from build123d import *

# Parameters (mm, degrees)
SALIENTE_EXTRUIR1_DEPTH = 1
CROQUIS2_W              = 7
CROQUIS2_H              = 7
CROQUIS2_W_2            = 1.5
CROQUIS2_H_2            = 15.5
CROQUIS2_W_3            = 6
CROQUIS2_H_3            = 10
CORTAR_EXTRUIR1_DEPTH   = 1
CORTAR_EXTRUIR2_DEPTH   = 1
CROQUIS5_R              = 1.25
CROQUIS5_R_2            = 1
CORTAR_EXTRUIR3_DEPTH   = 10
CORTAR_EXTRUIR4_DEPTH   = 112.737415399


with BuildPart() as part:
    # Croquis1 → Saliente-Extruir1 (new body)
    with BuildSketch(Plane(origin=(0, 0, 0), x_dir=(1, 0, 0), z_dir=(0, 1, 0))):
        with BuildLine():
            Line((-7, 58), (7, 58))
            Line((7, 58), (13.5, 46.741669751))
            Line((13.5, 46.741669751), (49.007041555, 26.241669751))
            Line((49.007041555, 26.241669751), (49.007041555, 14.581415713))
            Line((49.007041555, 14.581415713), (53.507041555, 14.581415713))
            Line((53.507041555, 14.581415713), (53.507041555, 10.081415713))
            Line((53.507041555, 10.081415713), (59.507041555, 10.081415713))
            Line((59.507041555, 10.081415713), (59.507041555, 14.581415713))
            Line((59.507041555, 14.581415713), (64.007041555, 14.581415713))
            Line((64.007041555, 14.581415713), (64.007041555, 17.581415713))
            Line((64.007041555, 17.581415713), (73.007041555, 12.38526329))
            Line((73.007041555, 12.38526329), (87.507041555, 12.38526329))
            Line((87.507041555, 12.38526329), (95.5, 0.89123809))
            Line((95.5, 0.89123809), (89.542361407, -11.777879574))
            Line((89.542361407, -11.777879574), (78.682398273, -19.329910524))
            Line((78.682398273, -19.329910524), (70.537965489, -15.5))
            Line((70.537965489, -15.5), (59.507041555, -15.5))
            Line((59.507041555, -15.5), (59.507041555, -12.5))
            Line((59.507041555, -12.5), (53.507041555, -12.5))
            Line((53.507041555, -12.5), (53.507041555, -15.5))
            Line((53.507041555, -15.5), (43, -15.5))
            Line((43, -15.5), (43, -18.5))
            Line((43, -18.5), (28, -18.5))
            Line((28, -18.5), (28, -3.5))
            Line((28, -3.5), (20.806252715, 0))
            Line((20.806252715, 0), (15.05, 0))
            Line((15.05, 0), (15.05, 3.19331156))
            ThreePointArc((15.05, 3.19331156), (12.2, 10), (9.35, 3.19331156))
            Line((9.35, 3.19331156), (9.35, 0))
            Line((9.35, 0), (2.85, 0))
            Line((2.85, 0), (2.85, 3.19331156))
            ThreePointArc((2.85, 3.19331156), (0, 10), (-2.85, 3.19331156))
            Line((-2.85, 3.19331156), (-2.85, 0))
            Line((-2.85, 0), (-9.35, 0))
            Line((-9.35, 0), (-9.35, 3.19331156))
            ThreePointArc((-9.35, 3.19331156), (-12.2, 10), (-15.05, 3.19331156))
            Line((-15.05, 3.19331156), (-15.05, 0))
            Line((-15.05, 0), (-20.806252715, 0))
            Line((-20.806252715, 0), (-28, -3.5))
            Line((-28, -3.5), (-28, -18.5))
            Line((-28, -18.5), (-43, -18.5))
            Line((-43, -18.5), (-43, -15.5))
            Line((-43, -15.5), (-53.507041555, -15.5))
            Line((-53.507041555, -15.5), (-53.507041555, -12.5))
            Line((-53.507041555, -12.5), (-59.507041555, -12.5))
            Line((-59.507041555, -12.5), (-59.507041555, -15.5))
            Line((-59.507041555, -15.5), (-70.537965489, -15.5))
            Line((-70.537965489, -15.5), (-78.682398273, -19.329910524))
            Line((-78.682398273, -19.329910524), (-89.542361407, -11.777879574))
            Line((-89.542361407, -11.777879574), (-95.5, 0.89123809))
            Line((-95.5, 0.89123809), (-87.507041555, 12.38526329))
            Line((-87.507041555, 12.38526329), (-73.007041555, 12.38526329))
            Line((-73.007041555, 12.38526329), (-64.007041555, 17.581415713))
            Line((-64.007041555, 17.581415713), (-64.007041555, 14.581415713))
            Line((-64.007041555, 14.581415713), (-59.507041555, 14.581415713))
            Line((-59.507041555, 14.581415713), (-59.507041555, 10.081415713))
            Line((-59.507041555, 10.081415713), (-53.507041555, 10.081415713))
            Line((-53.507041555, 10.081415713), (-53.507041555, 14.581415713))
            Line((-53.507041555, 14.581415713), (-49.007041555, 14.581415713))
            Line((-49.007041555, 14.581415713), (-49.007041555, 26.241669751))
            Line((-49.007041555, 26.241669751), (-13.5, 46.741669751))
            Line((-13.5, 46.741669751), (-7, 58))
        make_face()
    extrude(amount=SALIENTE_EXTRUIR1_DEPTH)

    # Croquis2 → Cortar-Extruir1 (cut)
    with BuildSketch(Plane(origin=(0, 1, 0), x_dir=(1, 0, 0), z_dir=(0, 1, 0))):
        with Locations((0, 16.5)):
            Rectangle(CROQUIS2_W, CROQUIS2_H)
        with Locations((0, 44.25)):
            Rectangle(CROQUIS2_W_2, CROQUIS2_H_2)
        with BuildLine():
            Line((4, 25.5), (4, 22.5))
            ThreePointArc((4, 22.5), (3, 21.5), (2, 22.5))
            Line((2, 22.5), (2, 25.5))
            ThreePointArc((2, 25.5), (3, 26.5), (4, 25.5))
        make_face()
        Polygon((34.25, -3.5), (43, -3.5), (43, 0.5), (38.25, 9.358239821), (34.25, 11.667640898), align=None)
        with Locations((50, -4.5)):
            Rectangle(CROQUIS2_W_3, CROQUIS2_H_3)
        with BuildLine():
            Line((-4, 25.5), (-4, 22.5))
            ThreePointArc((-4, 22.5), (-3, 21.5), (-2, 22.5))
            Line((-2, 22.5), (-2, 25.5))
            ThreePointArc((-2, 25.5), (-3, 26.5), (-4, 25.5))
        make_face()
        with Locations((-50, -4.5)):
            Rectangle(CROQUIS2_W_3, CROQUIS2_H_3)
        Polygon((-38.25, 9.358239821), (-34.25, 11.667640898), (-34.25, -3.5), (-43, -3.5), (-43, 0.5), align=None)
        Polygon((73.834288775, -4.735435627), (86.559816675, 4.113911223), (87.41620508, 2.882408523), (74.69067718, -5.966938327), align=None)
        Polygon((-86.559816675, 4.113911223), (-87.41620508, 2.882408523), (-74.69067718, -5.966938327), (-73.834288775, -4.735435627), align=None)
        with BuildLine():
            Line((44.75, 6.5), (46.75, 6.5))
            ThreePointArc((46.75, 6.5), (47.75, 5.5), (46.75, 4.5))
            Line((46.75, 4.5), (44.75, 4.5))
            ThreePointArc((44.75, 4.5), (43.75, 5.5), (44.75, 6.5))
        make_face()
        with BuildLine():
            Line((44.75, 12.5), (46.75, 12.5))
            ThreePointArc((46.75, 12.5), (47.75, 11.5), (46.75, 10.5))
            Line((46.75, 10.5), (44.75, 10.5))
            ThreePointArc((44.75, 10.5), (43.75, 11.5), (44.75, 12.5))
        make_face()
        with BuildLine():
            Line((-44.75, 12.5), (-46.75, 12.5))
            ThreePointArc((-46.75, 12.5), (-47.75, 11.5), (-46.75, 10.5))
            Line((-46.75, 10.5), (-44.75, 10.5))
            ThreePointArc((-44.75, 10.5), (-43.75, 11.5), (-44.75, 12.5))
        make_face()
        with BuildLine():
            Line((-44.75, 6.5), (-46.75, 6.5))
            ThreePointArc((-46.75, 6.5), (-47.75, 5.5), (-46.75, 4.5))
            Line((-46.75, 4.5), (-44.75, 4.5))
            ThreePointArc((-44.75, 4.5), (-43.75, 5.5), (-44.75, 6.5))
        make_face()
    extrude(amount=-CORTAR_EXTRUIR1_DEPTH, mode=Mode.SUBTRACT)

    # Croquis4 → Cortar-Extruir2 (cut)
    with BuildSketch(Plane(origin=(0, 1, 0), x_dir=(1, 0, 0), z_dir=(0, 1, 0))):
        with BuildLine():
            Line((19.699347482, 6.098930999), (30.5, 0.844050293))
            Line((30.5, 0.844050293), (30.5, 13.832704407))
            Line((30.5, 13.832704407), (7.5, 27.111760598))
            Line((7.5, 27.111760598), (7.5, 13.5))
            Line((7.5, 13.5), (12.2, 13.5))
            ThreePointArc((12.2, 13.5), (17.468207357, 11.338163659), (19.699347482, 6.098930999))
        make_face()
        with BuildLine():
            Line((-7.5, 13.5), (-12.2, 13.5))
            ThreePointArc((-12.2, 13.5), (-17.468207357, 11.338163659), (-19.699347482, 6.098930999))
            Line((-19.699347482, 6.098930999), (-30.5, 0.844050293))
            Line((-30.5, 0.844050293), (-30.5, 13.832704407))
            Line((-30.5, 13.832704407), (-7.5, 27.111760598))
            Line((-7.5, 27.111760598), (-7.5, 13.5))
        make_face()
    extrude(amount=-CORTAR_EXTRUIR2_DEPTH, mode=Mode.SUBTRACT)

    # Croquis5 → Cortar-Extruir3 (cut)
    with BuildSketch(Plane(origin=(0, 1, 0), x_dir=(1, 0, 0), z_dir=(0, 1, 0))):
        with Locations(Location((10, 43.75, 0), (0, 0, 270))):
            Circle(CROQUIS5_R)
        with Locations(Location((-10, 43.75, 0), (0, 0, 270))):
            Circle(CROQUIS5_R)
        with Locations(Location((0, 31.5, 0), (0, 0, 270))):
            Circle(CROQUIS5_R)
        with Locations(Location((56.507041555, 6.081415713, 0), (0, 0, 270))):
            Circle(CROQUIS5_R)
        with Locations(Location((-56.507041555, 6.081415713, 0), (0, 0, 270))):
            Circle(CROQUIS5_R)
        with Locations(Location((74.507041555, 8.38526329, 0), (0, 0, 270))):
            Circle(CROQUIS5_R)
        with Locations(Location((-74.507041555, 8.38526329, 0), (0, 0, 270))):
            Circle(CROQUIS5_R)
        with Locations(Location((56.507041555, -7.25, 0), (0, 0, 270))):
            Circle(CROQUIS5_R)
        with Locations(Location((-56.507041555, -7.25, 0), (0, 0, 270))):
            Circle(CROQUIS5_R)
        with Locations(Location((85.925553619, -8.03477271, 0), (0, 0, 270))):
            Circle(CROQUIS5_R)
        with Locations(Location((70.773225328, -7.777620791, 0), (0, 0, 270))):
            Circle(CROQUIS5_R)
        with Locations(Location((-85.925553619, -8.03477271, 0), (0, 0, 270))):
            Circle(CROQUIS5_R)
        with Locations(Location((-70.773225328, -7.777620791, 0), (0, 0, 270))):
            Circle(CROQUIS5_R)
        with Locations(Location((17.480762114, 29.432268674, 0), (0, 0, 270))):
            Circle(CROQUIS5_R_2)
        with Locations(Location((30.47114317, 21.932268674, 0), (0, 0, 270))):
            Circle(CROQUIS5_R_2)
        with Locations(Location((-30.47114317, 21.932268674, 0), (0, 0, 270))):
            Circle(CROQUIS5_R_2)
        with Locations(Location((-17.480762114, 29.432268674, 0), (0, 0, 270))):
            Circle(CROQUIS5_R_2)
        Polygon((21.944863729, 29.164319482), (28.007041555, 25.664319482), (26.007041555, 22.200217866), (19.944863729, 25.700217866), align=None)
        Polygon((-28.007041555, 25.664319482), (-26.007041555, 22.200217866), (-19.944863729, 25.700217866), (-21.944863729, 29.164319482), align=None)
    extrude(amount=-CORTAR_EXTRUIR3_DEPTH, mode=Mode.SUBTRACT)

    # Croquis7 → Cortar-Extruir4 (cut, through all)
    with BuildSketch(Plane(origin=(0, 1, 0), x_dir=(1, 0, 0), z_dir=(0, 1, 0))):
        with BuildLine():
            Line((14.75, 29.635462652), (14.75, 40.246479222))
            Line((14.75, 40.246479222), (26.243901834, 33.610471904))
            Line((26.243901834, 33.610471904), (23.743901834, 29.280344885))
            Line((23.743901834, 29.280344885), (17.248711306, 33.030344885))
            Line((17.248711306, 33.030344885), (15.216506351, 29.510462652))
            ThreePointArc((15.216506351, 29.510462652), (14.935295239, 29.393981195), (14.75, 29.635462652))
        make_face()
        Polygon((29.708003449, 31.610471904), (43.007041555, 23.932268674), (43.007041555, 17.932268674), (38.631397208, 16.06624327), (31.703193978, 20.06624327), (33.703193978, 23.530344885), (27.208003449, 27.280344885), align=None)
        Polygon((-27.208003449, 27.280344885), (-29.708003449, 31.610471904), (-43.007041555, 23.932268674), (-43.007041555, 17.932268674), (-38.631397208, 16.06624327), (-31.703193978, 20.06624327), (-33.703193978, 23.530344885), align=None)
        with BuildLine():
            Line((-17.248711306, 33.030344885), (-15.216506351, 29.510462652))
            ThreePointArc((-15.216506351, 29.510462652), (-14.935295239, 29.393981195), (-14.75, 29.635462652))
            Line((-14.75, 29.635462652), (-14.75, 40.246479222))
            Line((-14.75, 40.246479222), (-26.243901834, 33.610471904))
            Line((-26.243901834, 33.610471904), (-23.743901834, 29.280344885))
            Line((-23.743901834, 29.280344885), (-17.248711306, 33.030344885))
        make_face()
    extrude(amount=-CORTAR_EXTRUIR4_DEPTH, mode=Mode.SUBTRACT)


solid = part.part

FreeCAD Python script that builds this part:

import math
import FreeCAD as App
import Part
import Sketcher
Q = App.Units.Quantity


def add_polygon(sketch, points):
    """Adds a closed chain of lines whose ends are joined by coincident constraints."""
    first, n = sketch.GeometryCount, len(points)
    for a, b in zip(points, points[1:] + points[:1]):
        sketch.addGeometry(Part.LineSegment(App.Vector(*a, 0), App.Vector(*b, 0)), False)
    for i in range(n):
        sketch.addConstraint(Sketcher.Constraint("Coincident", first + i, 2, first + (i + 1) % n, 1))

doc = App.newDocument("Part")
body = doc.addObject("PartDesign::Body", "Body")

sketch1 = body.newObject("Sketcher::SketchObject", "Sketch")
sketch1.AttachmentSupport = (doc.getObject("XZ_Plane"), [""])
sketch1.MapMode = "FlatFace"
sketch1.addGeometry([
    Part.LineSegment(App.Vector(7, -58, 0), App.Vector(-7, -58, 0)),
    Part.LineSegment(App.Vector(-7, -58, 0), App.Vector(-13.5, -46.7, 0)),
    Part.LineSegment(App.Vector(-13.5, -46.7, 0), App.Vector(-49, -26.2, 0)),
    Part.LineSegment(App.Vector(-49, -26.2, 0), App.Vector(-49, -14.6, 0)),
    Part.LineSegment(App.Vector(-49, -14.6, 0), App.Vector(-53.5, -14.6, 0)),
    Part.LineSegment(App.Vector(-53.5, -14.6, 0), App.Vector(-53.5, -10.1, 0)),
    Part.LineSegment(App.Vector(-53.5, -10.1, 0), App.Vector(-59.5, -10.1, 0)),
    Part.LineSegment(App.Vector(-59.5, -10.1, 0), App.Vector(-59.5, -14.6, 0)),
    Part.LineSegment(App.Vector(-59.5, -14.6, 0), App.Vector(-64, -14.6, 0)),
    Part.LineSegment(App.Vector(-64, -14.6, 0), App.Vector(-64, -17.6, 0)),
    Part.LineSegment(App.Vector(-64, -17.6, 0), App.Vector(-73, -12.4, 0)),
    Part.LineSegment(App.Vector(-73, -12.4, 0), App.Vector(-87.5, -12.4, 0)),
    Part.LineSegment(App.Vector(-87.5, -12.4, 0), App.Vector(-95.5, -0.9, 0)),
    Part.LineSegment(App.Vector(-95.5, -0.9, 0), App.Vector(-89.5, 11.8, 0)),
    Part.LineSegment(App.Vector(-89.5, 11.8, 0), App.Vector(-78.7, 19.3, 0)),
    Part.LineSegment(App.Vector(-78.7, 19.3, 0), App.Vector(-70.5, 15.5, 0)),
    Part.LineSegment(App.Vector(-70.5, 15.5, 0), App.Vector(-59.5, 15.5, 0)),
    Part.LineSegment(App.Vector(-59.5, 15.5, 0), App.Vector(-59.5, 12.5, 0)),
    Part.LineSegment(App.Vector(-59.5, 12.5, 0), App.Vector(-53.5, 12.5, 0)),
    Part.LineSegment(App.Vector(-53.5, 12.5, 0), App.Vector(-53.5, 15.5, 0)),
    Part.LineSegment(App.Vector(-53.5, 15.5, 0), App.Vector(-43, 15.5, 0)),
    Part.LineSegment(App.Vector(-43, 15.5, 0), App.Vector(-43, 18.5, 0)),
    Part.LineSegment(App.Vector(-43, 18.5, 0), App.Vector(-28, 18.5, 0)),
    Part.LineSegment(App.Vector(-28, 18.5, 0), App.Vector(-28, 3.5, 0)),
    Part.LineSegment(App.Vector(-28, 3.5, 0), App.Vector(-20.8, 0, 0)),
    Part.LineSegment(App.Vector(-20.8, 0, 0), App.Vector(-15.1, 0, 0)),
    Part.LineSegment(App.Vector(-15.1, 0, 0), App.Vector(-15.1, -3.2, 0)),
    Part.ArcOfCircle(Part.Circle(App.Vector(-12.2, -6, 0), App.Vector(0, 0, 1), 4), math.radians(135), math.radians(405)),
    Part.LineSegment(App.Vector(-9.3, -3.2, 0), App.Vector(-9.3, 0, 0)),
    Part.LineSegment(App.Vector(-9.3, 0, 0), App.Vector(-2.9, 0, 0)),
    Part.LineSegment(App.Vector(-2.9, 0, 0), App.Vector(-2.9, -3.2, 0)),
    Part.ArcOfCircle(Part.Circle(App.Vector(0, -6, 0), App.Vector(0, 0, 1), 4), math.radians(135), math.radians(405)),
    Part.LineSegment(App.Vector(2.9, -3.2, 0), App.Vector(2.9, 0, 0)),
    Part.LineSegment(App.Vector(2.9, 0, 0), App.Vector(9.3, 0, 0)),
    Part.LineSegment(App.Vector(9.3, 0, 0), App.Vector(9.3, -3.2, 0)),
    Part.ArcOfCircle(Part.Circle(App.Vector(12.2, -6, 0), App.Vector(0, 0, 1), 4), math.radians(135), math.radians(405)),
    Part.LineSegment(App.Vector(15.1, -3.2, 0), App.Vector(15.1, 0, 0)),
    Part.LineSegment(App.Vector(15.1, 0, 0), App.Vector(20.8, 0, 0)),
    Part.LineSegment(App.Vector(20.8, 0, 0), App.Vector(28, 3.5, 0)),
    Part.LineSegment(App.Vector(28, 3.5, 0), App.Vector(28, 18.5, 0)),
    Part.LineSegment(App.Vector(28, 18.5, 0), App.Vector(43, 18.5, 0)),
    Part.LineSegment(App.Vector(43, 18.5, 0), App.Vector(43, 15.5, 0)),
    Part.LineSegment(App.Vector(43, 15.5, 0), App.Vector(53.5, 15.5, 0)),
    Part.LineSegment(App.Vector(53.5, 15.5, 0), App.Vector(53.5, 12.5, 0)),
    Part.LineSegment(App.Vector(53.5, 12.5, 0), App.Vector(59.5, 12.5, 0)),
    Part.LineSegment(App.Vector(59.5, 12.5, 0), App.Vector(59.5, 15.5, 0)),
    Part.LineSegment(App.Vector(59.5, 15.5, 0), App.Vector(70.5, 15.5, 0)),
    Part.LineSegment(App.Vector(70.5, 15.5, 0), App.Vector(78.7, 19.3, 0)),
    Part.LineSegment(App.Vector(78.7, 19.3, 0), App.Vector(89.5, 11.8, 0)),
    Part.LineSegment(App.Vector(89.5, 11.8, 0), App.Vector(95.5, -0.9, 0)),
    Part.LineSegment(App.Vector(95.5, -0.9, 0), App.Vector(87.5, -12.4, 0)),
    Part.LineSegment(App.Vector(87.5, -12.4, 0), App.Vector(73, -12.4, 0)),
    Part.LineSegment(App.Vector(73, -12.4, 0), App.Vector(64, -17.6, 0)),
    Part.LineSegment(App.Vector(64, -17.6, 0), App.Vector(64, -14.6, 0)),
    Part.LineSegment(App.Vector(64, -14.6, 0), App.Vector(59.5, -14.6, 0)),
    Part.LineSegment(App.Vector(59.5, -14.6, 0), App.Vector(59.5, -10.1, 0)),
    Part.LineSegment(App.Vector(59.5, -10.1, 0), App.Vector(53.5, -10.1, 0)),
    Part.LineSegment(App.Vector(53.5, -10.1, 0), App.Vector(53.5, -14.6, 0)),
    Part.LineSegment(App.Vector(53.5, -14.6, 0), App.Vector(49, -14.6, 0)),
    Part.LineSegment(App.Vector(49, -14.6, 0), App.Vector(49, -26.2, 0)),
    Part.LineSegment(App.Vector(49, -26.2, 0), App.Vector(13.5, -46.7, 0)),
    Part.LineSegment(App.Vector(13.5, -46.7, 0), App.Vector(7, -58, 0)),
], False)
sketch1.addConstraint([
    Sketcher.Constraint("Coincident", 0, 2, 1, 1),
    Sketcher.Constraint("Coincident", 1, 2, 2, 1),
    Sketcher.Constraint("Coincident", 2, 2, 3, 1),
    Sketcher.Constraint("Coincident", 3, 2, 4, 1),
    Sketcher.Constraint("Coincident", 4, 2, 5, 1),
    Sketcher.Constraint("Coincident", 5, 2, 6, 1),
    Sketcher.Constraint("Coincident", 6, 2, 7, 1),
    Sketcher.Constraint("Coincident", 7, 2, 8, 1),
    Sketcher.Constraint("Coincident", 8, 2, 9, 1),
    Sketcher.Constraint("Coincident", 9, 2, 10, 1),
    Sketcher.Constraint("Coincident", 10, 2, 11, 1),
    Sketcher.Constraint("Coincident", 11, 2, 12, 1),
    Sketcher.Constraint("Coincident", 12, 2, 13, 1),
    Sketcher.Constraint("Coincident", 13, 2, 14, 1),
    Sketcher.Constraint("Coincident", 14, 2, 15, 1),
    Sketcher.Constraint("Coincident", 15, 2, 16, 1),
    Sketcher.Constraint("Coincident", 16, 2, 17, 1),
    Sketcher.Constraint("Coincident", 17, 2, 18, 1),
    Sketcher.Constraint("Coincident", 18, 2, 19, 1),
    Sketcher.Constraint("Coincident", 19, 2, 20, 1),
    Sketcher.Constraint("Coincident", 20, 2, 21, 1),
    Sketcher.Constraint("Coincident", 21, 2, 22, 1),
    Sketcher.Constraint("Coincident", 22, 2, 23, 1),
    Sketcher.Constraint("Coincident", 23, 2, 24, 1),
    Sketcher.Constraint("Coincident", 24, 2, 25, 1),
    Sketcher.Constraint("Coincident", 25, 2, 26, 1),
    Sketcher.Constraint("Coincident", 26, 2, 27, 1),
    Sketcher.Constraint("Coincident", 27, 2, 28, 1),
    Sketcher.Constraint("Coincident", 28, 2, 29, 1),
    Sketcher.Constraint("Coincident", 29, 2, 30, 1),
    Sketcher.Constraint("Coincident", 30, 2, 31, 1),
    Sketcher.Constraint("Coincident", 31, 2, 32, 1),
    Sketcher.Constraint("Coincident", 32, 2, 33, 1),
    Sketcher.Constraint("Coincident", 33, 2, 34, 1),
    Sketcher.Constraint("Coincident", 34, 2, 35, 1),
    Sketcher.Constraint("Coincident", 35, 2, 36, 1),
    Sketcher.Constraint("Coincident", 36, 2, 37, 1),
    Sketcher.Constraint("Coincident", 37, 2, 38, 1),
    Sketcher.Constraint("Coincident", 38, 2, 39, 1),
    Sketcher.Constraint("Coincident", 39, 2, 40, 1),
    Sketcher.Constraint("Coincident", 40, 2, 41, 1),
    Sketcher.Constraint("Coincident", 41, 2, 42, 1),
    Sketcher.Constraint("Coincident", 42, 2, 43, 1),
    Sketcher.Constraint("Coincident", 43, 2, 44, 1),
    Sketcher.Constraint("Coincident", 44, 2, 45, 1),
    Sketcher.Constraint("Coincident", 45, 2, 46, 1),
    Sketcher.Constraint("Coincident", 46, 2, 47, 1),
    Sketcher.Constraint("Coincident", 47, 2, 48, 1),
    Sketcher.Constraint("Coincident", 48, 2, 49, 1),
    Sketcher.Constraint("Coincident", 49, 2, 50, 1),
    Sketcher.Constraint("Coincident", 50, 2, 51, 1),
    Sketcher.Constraint("Coincident", 51, 2, 52, 1),
    Sketcher.Constraint("Coincident", 52, 2, 53, 1),
    Sketcher.Constraint("Coincident", 53, 2, 54, 1),
    Sketcher.Constraint("Coincident", 54, 2, 55, 1),
    Sketcher.Constraint("Coincident", 55, 2, 56, 1),
    Sketcher.Constraint("Coincident", 56, 2, 57, 1),
    Sketcher.Constraint("Coincident", 57, 2, 58, 1),
    Sketcher.Constraint("Coincident", 58, 2, 59, 1),
    Sketcher.Constraint("Coincident", 59, 2, 60, 1),
    Sketcher.Constraint("Coincident", 60, 2, 61, 1),
    Sketcher.Constraint("Coincident", 61, 2, 0, 1),
    Sketcher.Constraint("Horizontal", 0),
    Sketcher.Constraint("Vertical", 3),
    Sketcher.Constraint("Horizontal", 4),
    Sketcher.Constraint("Vertical", 5),
    Sketcher.Constraint("Horizontal", 6),
    Sketcher.Constraint("Vertical", 7),
    Sketcher.Constraint("Horizontal", 8),
    Sketcher.Constraint("Vertical", 9),
    Sketcher.Constraint("Horizontal", 11),
    Sketcher.Constraint("Horizontal", 16),
    Sketcher.Constraint("Vertical", 17),
    Sketcher.Constraint("Horizontal", 18),
    Sketcher.Constraint("Vertical", 19),
    Sketcher.Constraint("Horizontal", 20),
    Sketcher.Constraint("Vertical", 21),
    Sketcher.Constraint("Horizontal", 22),
    Sketcher.Constraint("Vertical", 23),
    Sketcher.Constraint("Horizontal", 25),
    Sketcher.Constraint("Vertical", 26),
    Sketcher.Constraint("Vertical", 28),
    Sketcher.Constraint("Horizontal", 29),
    Sketcher.Constraint("Vertical", 30),
    Sketcher.Constraint("Vertical", 32),
    Sketcher.Constraint("Horizontal", 33),
    Sketcher.Constraint("Vertical", 34),
    Sketcher.Constraint("Vertical", 36),
    Sketcher.Constraint("Horizontal", 37),
    Sketcher.Constraint("Vertical", 39),
    Sketcher.Constraint("Horizontal", 40),
    Sketcher.Constraint("Vertical", 41),
    Sketcher.Constraint("Horizontal", 42),
    Sketcher.Constraint("Vertical", 43),
    Sketcher.Constraint("Horizontal", 44),
    Sketcher.Constraint("Vertical", 45),
    Sketcher.Constraint("Horizontal", 46),
    Sketcher.Constraint("Horizontal", 51),
    Sketcher.Constraint("Vertical", 53),
    Sketcher.Constraint("Horizontal", 54),
    Sketcher.Constraint("Vertical", 55),
    Sketcher.Constraint("Horizontal", 56),
    Sketcher.Constraint("Vertical", 57),
    Sketcher.Constraint("Horizontal", 58),
    Sketcher.Constraint("Vertical", 59),
    Sketcher.Constraint("Equal", 27, 31),
    Sketcher.Constraint("Equal", 31, 35),
    Sketcher.Constraint("Symmetric", 29, 2, 32, 2, -1, 1),
    Sketcher.Constraint("Symmetric", 25, 2, 36, 2, -1, 1),
    Sketcher.Constraint("Symmetric", 27, 3, 35, 3, -2),
    Sketcher.Constraint("Symmetric", 28, 2, 33, 2, -2),
    Sketcher.Constraint("Symmetric", 24, 2, 37, 2, -2),
    Sketcher.Constraint("Symmetric", 23, 2, 38, 2, -2),
    Sketcher.Constraint("Symmetric", 21, 2, 40, 2, -2),
    Sketcher.Constraint("Symmetric", 19, 2, 42, 2, -2),
    Sketcher.Constraint("Symmetric", 17, 2, 44, 2, -2),
    Sketcher.Constraint("Symmetric", 15, 2, 46, 2, -2),
    Sketcher.Constraint("Symmetric", 14, 2, 47, 2, -2),
    Sketcher.Constraint("Symmetric", 13, 2, 48, 2, -2),
    Sketcher.Constraint("Symmetric", 12, 2, 49, 2, -2),
    Sketcher.Constraint("Symmetric", 11, 2, 50, 2, -2),
    Sketcher.Constraint("Symmetric", 9, 2, 52, 2, -2),
    Sketcher.Constraint("Symmetric", 7, 2, 54, 2, -2),
    Sketcher.Constraint("Symmetric", 5, 2, 56, 2, -2),
    Sketcher.Constraint("Symmetric", 3, 2, 58, 2, -2),
    Sketcher.Constraint("Symmetric", 1, 2, 60, 2, -2),
    Sketcher.Constraint("PointOnObject", 31, 3, -2),
    Sketcher.Constraint("Parallel", 2, 10),
    Sketcher.Constraint("Perpendicular", 12, 14),
    Sketcher.Constraint("Perpendicular", 13, 15),
    Sketcher.Constraint("Perpendicular", 1, 52),
    Sketcher.Constraint("Parallel", 52, 60),
    Sketcher.Constraint("Perpendicular", 10, 61),
    Sketcher.Constraint("Horizontal", 27, 3, 31, 3),
    Sketcher.Constraint("Horizontal", 4, 2, 7, 2),
    Sketcher.Constraint("Horizontal", 16, 2, 19, 2),
    Sketcher.Constraint("Horizontal", 26, 2, 27, 2),
    Sketcher.Constraint("Horizontal", 27, 2, 30, 2),
    Sketcher.Constraint("Horizontal", 2, 2, 59, 2),
    Sketcher.Constraint("Vertical", 7, 2, 16, 2),
    Sketcher.Constraint("Vertical", 5, 2, 18, 2),
    Sketcher.Constraint("Equal", 4, 8),
    Sketcher.Constraint("Equal", 58, 5),
    Sketcher.Constraint("Equal", 9, 17),
    Sketcher.Constraint("Equal", 19, 21),
    Sketcher.Constraint("Equal", 40, 23),
    Sketcher.Constraint("Equal", 12, 13),
    Sketcher.Constraint("Radius", 27, 4.0),
    Sketcher.Constraint("DistanceX", 0, 2, 0, 1, 14.0),
    Sketcher.Constraint("DistanceX", 6, 2, 6, 1, 6.0),
    Sketcher.Constraint("DistanceX", 22, 1, 22, 2, 15.0),
    Sketcher.Constraint("DistanceY", 9, 2, 9, 1, 3.0),
    Sketcher.Constraint("Angle", 1, Q("120 deg")),
    Sketcher.Constraint("Distance", 1, 13.0),
    Sketcher.Constraint("Distance", 2, 41.0),
    Sketcher.Constraint("Distance", 12, 14.0),
    Sketcher.Constraint("Distance", 15, 9.0),
    Sketcher.Constraint("Distance", 24, 8.0),
    Sketcher.Constraint("DistanceX", 4, 2, 4, 1, 4.5),
    Sketcher.Constraint("DistanceX", 11, 2, 11, 1, 14.5),
    Sketcher.Constraint("DistanceX", 29, 1, 29, 2, 6.5),
    Sketcher.Constraint("DistanceY", 27, 3, -1, 1, 6.0),
    Sketcher.Constraint("DistanceY", 0, 2, -1, 1, 58.0),
    Sketcher.Constraint("DistanceX", 20, 2, -1, 1, 43.0),
    Sketcher.Constraint("DistanceX", 27, 3, -1, 1, 12.2),
    Sketcher.Constraint("DistanceX", 12, 2, -1, 1, 95.5),
    Sketcher.Constraint("DistanceY", -1, 1, 15, 2, 15.5),
    Sketcher.Constraint("DistanceX", 14, 2, -1, 1, 78.682398),
    Sketcher.Constraint("DistanceX", 16, 1, 16, 2, 11.030924),
    Sketcher.Constraint("DistanceY", 3, 1, 3, 2, 11.660254),
])
pad1 = body.newObject("PartDesign::Pad", "Pad")
pad1.Profile = sketch1
pad1.Length = 1
pad1.Reversed = True

sketch2 = body.newObject("Sketcher::SketchObject", "Sketch001")
sketch2.AttachmentSupport = (doc.getObject("XZ_Plane"), [""])
sketch2.MapMode = "FlatFace"
sketch2.AttachmentOffset = App.Placement(App.Vector(0, 0, -1), App.Rotation())
add_polygon(sketch2, [(-3.5, -20), (-3.5, -13), (3.5, -13), (3.5, -20)])
add_polygon(sketch2, [(-0.8, -52), (-0.8, -36.5), (0.8, -36.5), (0.8, -52)])
sketch2.addGeometry(Part.LineSegment(App.Vector(4, -22.5, 0), App.Vector(4, -25.5, 0)), False)
sketch2.addGeometry(Part.ArcOfCircle(Part.Circle(App.Vector(3, -25.5, 0), App.Vector(0, 0, 1), 1), math.radians(180), math.radians(360)), False)
sketch2.addGeometry(Part.LineSegment(App.Vector(2, -25.5, 0), App.Vector(2, -22.5, 0)), False)
sketch2.addGeometry(Part.ArcOfCircle(Part.Circle(App.Vector(3, -22.5, 0), App.Vector(0, 0, 1), 1), math.radians(0), math.radians(180)), False)
add_polygon(sketch2, [(34.2, 3.5), (43, 3.5), (43, -0.5), (38.2, -9.4), (34.2, -11.7)])
add_polygon(sketch2, [(47, -0.5), (47, 9.5), (53, 9.5), (53, -0.5)])
sketch2.addGeometry(Part.LineSegment(App.Vector(-4, -25.5, 0), App.Vector(-4, -22.5, 0)), False)
sketch2.addGeometry(Part.ArcOfCircle(Part.Circle(App.Vector(-3, -22.5, 0), App.Vector(0, 0, 1), 1), math.radians(0), math.radians(180)), False)
sketch2.addGeometry(Part.LineSegment(App.Vector(-2, -22.5, 0), App.Vector(-2, -25.5, 0)), False)
sketch2.addGeometry(Part.ArcOfCircle(Part.Circle(App.Vector(-3, -25.5, 0), App.Vector(0, 0, 1), 1), math.radians(180), math.radians(360)), False)
add_polygon(sketch2, [(-53, -0.5), (-53, 9.5), (-47, 9.5), (-47, -0.5)])
add_polygon(sketch2, [(-34.2, -11.7), (-38.2, -9.4), (-43, -0.5), (-43, 3.5), (-34.2, 3.5)])
add_polygon(sketch2, [(86.6, -4.1), (73.8, 4.7), (74.7, 6), (87.4, -2.9)])
add_polygon(sketch2, [(-86.6, -4.1), (-87.4, -2.9), (-74.7, 6), (-73.8, 4.7)])
sketch2.addGeometry(Part.LineSegment(App.Vector(46.8, -6.5, 0), App.Vector(44.8, -6.5, 0)), False)
sketch2.addGeometry(Part.ArcOfCircle(Part.Circle(App.Vector(44.8, -5.5, 0), App.Vector(0, 0, 1), 1), math.radians(90), math.radians(270)), False)
sketch2.addGeometry(Part.LineSegment(App.Vector(44.8, -4.5, 0), App.Vector(46.8, -4.5, 0)), False)
sketch2.addGeometry(Part.ArcOfCircle(Part.Circle(App.Vector(46.8, -5.5, 0), App.Vector(0, 0, 1), 1), math.radians(-90), math.radians(90)), False)
sketch2.addGeometry(Part.LineSegment(App.Vector(46.8, -12.5, 0), App.Vector(44.8, -12.5, 0)), False)
sketch2.addGeometry(Part.ArcOfCircle(Part.Circle(App.Vector(44.8, -11.5, 0), App.Vector(0, 0, 1), 1), math.radians(90), math.radians(270)), False)
sketch2.addGeometry(Part.LineSegment(App.Vector(44.8, -10.5, 0), App.Vector(46.8, -10.5, 0)), False)
sketch2.addGeometry(Part.ArcOfCircle(Part.Circle(App.Vector(46.8, -11.5, 0), App.Vector(0, 0, 1), 1), math.radians(-90), math.radians(90)), False)
sketch2.addGeometry(Part.LineSegment(App.Vector(-44.8, -12.5, 0), App.Vector(-46.8, -12.5, 0)), False)
sketch2.addGeometry(Part.ArcOfCircle(Part.Circle(App.Vector(-46.8, -11.5, 0), App.Vector(0, 0, 1), 1), math.radians(90), math.radians(270)), False)
sketch2.addGeometry(Part.LineSegment(App.Vector(-46.8, -10.5, 0), App.Vector(-44.8, -10.5, 0)), False)
sketch2.addGeometry(Part.ArcOfCircle(Part.Circle(App.Vector(-44.8, -11.5, 0), App.Vector(0, 0, 1), 1), math.radians(-90), math.radians(90)), False)
sketch2.addGeometry(Part.LineSegment(App.Vector(-44.8, -6.5, 0), App.Vector(-46.8, -6.5, 0)), False)
sketch2.addGeometry(Part.ArcOfCircle(Part.Circle(App.Vector(-46.8, -5.5, 0), App.Vector(0, 0, 1), 1), math.radians(90), math.radians(270)), False)
sketch2.addGeometry(Part.LineSegment(App.Vector(-46.8, -4.5, 0), App.Vector(-44.8, -4.5, 0)), False)
sketch2.addGeometry(Part.ArcOfCircle(Part.Circle(App.Vector(-44.8, -5.5, 0), App.Vector(0, 0, 1), 1), math.radians(-90), math.radians(90)), False)
sketch2.addConstraint([
    Sketcher.Constraint("Tangent", 8, 2, 9, 2),
    Sketcher.Constraint("Tangent", 9, 1, 10, 1),
    Sketcher.Constraint("Tangent", 10, 2, 11, 2),
    Sketcher.Constraint("Tangent", 11, 1, 8, 1),
    Sketcher.Constraint("Tangent", 21, 2, 22, 2),
    Sketcher.Constraint("Tangent", 22, 1, 23, 1),
    Sketcher.Constraint("Tangent", 23, 2, 24, 2),
    Sketcher.Constraint("Tangent", 24, 1, 21, 1),
    Sketcher.Constraint("Tangent", 42, 2, 43, 2),
    Sketcher.Constraint("Tangent", 43, 1, 44, 1),
    Sketcher.Constraint("Tangent", 44, 2, 45, 2),
    Sketcher.Constraint("Tangent", 45, 1, 42, 1),
    Sketcher.Constraint("Tangent", 46, 2, 47, 2),
    Sketcher.Constraint("Tangent", 47, 1, 48, 1),
    Sketcher.Constraint("Tangent", 48, 2, 49, 2),
    Sketcher.Constraint("Tangent", 49, 1, 46, 1),
    Sketcher.Constraint("Tangent", 50, 2, 51, 2),
    Sketcher.Constraint("Tangent", 51, 1, 52, 1),
    Sketcher.Constraint("Tangent", 52, 2, 53, 2),
    Sketcher.Constraint("Tangent", 53, 1, 50, 1),
    Sketcher.Constraint("Tangent", 54, 2, 55, 2),
    Sketcher.Constraint("Tangent", 55, 1, 56, 1),
    Sketcher.Constraint("Tangent", 56, 2, 57, 2),
    Sketcher.Constraint("Tangent", 57, 1, 54, 1),
    Sketcher.Constraint("Vertical", 0),
    Sketcher.Constraint("Horizontal", 1),
    Sketcher.Constraint("Vertical", 2),
    Sketcher.Constraint("Horizontal", 3),
    Sketcher.Constraint("Vertical", 4),
    Sketcher.Constraint("Horizontal", 5),
    Sketcher.Constraint("Vertical", 6),
    Sketcher.Constraint("Horizontal", 7),
    Sketcher.Constraint("Vertical", 8),
    Sketcher.Constraint("Vertical", 10),
    Sketcher.Constraint("Horizontal", 12),
    Sketcher.Constraint("Vertical", 13),
    Sketcher.Constraint("Vertical", 16),
    Sketcher.Constraint("Vertical", 17),
    Sketcher.Constraint("Horizontal", 18),
    Sketcher.Constraint("Vertical", 19),
    Sketcher.Constraint("Horizontal", 20),
    Sketcher.Constraint("Vertical", 21),
    Sketcher.Constraint("Vertical", 23),
    Sketcher.Constraint("Vertical", 25),
    Sketcher.Constraint("Horizontal", 26),
    Sketcher.Constraint("Vertical", 27),
    Sketcher.Constraint("Horizontal", 28),
    Sketcher.Constraint("Vertical", 31),
    Sketcher.Constraint("Horizontal", 32),
    Sketcher.Constraint("Vertical", 33),
    Sketcher.Constraint("Horizontal", 42),
    Sketcher.Constraint("Horizontal", 44),
    Sketcher.Constraint("Horizontal", 46),
    Sketcher.Constraint("Horizontal", 48),
    Sketcher.Constraint("Horizontal", 50),
    Sketcher.Constraint("Horizontal", 52),
    Sketcher.Constraint("Horizontal", 54),
    Sketcher.Constraint("Horizontal", 56),
    Sketcher.Constraint("Equal", 11, 22),
    Sketcher.Constraint("Equal", 24, 43),
    Sketcher.Constraint("Equal", 45, 47),
    Sketcher.Constraint("Equal", 49, 51),
    Sketcher.Constraint("Equal", 53, 55),
    Sketcher.Constraint("Symmetric", 11, 3, 22, 3, -2),
    Sketcher.Constraint("Symmetric", 49, 3, 51, 3, -2),
    Sketcher.Constraint("Symmetric", 45, 3, 55, 3, -2),
    Sketcher.Constraint("Symmetric", 18, 2, 25, 2, -2),
    Sketcher.Constraint("Symmetric", 20, 2, 27, 2, -2),
    Sketcher.Constraint("Symmetric", 14, 2, 29, 2, -2),
    Sketcher.Constraint("Symmetric", 13, 2, 30, 2, -2),
    Sketcher.Constraint("Symmetric", 16, 2, 32, 2, -2),
    Sketcher.Constraint("Symmetric", 36, 2, 38, 2, -2),
    Sketcher.Constraint("Symmetric", 35, 2, 39, 2, -2),
    Sketcher.Constraint("Symmetric", 34, 2, 40, 2, -2),
    Sketcher.Constraint("Symmetric", 37, 2, 41, 2, -2),
    Sketcher.Constraint("Perpendicular", 34, 35),
    Sketcher.Constraint("Perpendicular", 35, 36),
    Sketcher.Constraint("Perpendicular", 36, 37),
    Sketcher.Constraint("Horizontal", 9, 3, 24, 3),
    Sketcher.Constraint("Horizontal", 13, 2, 19, 2),
    Sketcher.Constraint("Horizontal", 15, 2, 33, 2),
    Sketcher.Constraint("Vertical", 43, 3, 47, 3),
    Sketcher.Constraint("Vertical", 45, 3, 49, 3),
    Sketcher.Constraint("Vertical", 53, 3, 57, 3),
    Sketcher.Constraint("Equal", 48, 50),
    Sketcher.Constraint("Equal", 3, 0),
    Sketcher.Constraint("Radius", 9, 1.0),
    Sketcher.Constraint("DistanceX", 1, 1, 1, 2, 7.0),
    Sketcher.Constraint("DistanceX", 18, 1, 18, 2, 6.0),
    Sketcher.Constraint("DistanceX", 42, 2, 42, 1, 2.0),
    Sketcher.Constraint("DistanceY", 8, 2, 8, 1, 3.0),
    Sketcher.Constraint("DistanceY", 13, 2, 13, 1, 4.0),
    Sketcher.Constraint("DistanceY", 17, 1, 17, 2, 10.0),
    Sketcher.Constraint("Angle", 15, Q("-150 deg")),
    Sketcher.Constraint("DistanceX", 5, 1, 5, 2, 1.5),
    Sketcher.Constraint("DistanceY", 4, 1, 4, 2, 15.5),
    Sketcher.Constraint("DistanceX", -1, 1, 9, 3, 3.0),
    Sketcher.Constraint("DistanceY", 0, 2, -1, 1, 13.0),
    Sketcher.Constraint("DistanceY", 6, 2, -1, 1, 52.0),
    Sketcher.Constraint("DistanceX", -1, 1, 12, 2, 43.0),
    Sketcher.Constraint("DistanceX", -1, 1, 17, 2, 47.0),
    Sketcher.Constraint("Distance", 34, 15.5),
    Sketcher.Constraint("Distance", 35, 1.5),
    Sketcher.Constraint("DistanceX", 12, 1, 12, 2, 8.75),
    Sketcher.Constraint("DistanceY", 9, 3, -1, 1, 25.5),
    Sketcher.Constraint("DistanceY", 43, 3, -1, 1, 5.5),
    Sketcher.Constraint("DistanceY", 47, 3, -1, 1, 11.5),
    Sketcher.Constraint("DistanceX", 0, 2, -1, 1, 3.5),
    Sketcher.Constraint("DistanceY", -1, 1, 12, 2, 3.5),
    Sketcher.Constraint("DistanceX", -1, 1, 43, 3, 44.75),
    Sketcher.Constraint("DistanceX", 4, 2, -1, 1, 0.75),
    Sketcher.Constraint("DistanceX", -1, 1, 14, 2, 38.25),
    Sketcher.Constraint("DistanceY", 16, 1, 16, 2, 15.167641),
    Sketcher.Constraint("DistanceX", -1, 1, 34, 2, 73.834289),
    Sketcher.Constraint("DistanceY", -1, 1, 35, 2, 5.966938),
    Sketcher.Constraint("DistanceY", 36, 2, -1, 1, 2.882409),
])
pocket1 = body.newObject("PartDesign::Pocket", "Pocket")
pocket1.Profile = sketch2
pocket1.Length = 1
pocket1.Reversed = True

sketch3 = body.newObject("Sketcher::SketchObject", "Sketch002")
sketch3.AttachmentSupport = (doc.getObject("XZ_Plane"), [""])
sketch3.MapMode = "FlatFace"
sketch3.AttachmentOffset = App.Placement(App.Vector(0, 0, -1), App.Rotation())
sketch3.addGeometry([
    Part.LineSegment(App.Vector(19.7, -6.1, 0), App.Vector(30.5, -0.8, 0)),
    Part.LineSegment(App.Vector(30.5, -0.8, 0), App.Vector(30.5, -13.8, 0)),
    Part.LineSegment(App.Vector(30.5, -13.8, 0), App.Vector(7.5, -27.1, 0)),
    Part.LineSegment(App.Vector(7.5, -27.1, 0), App.Vector(7.5, -13.5, 0)),
    Part.LineSegment(App.Vector(7.5, -13.5, 0), App.Vector(12.2, -13.5, 0)),
    Part.ArcOfCircle(Part.Circle(App.Vector(12.2, -6, 0), App.Vector(0, 0, 1), 7.5), math.radians(-90), math.radians(-1)),
    Part.LineSegment(App.Vector(-12.2, -13.5, 0), App.Vector(-7.5, -13.5, 0)),
    Part.LineSegment(App.Vector(-7.5, -13.5, 0), App.Vector(-7.5, -27.1, 0)),
    Part.LineSegment(App.Vector(-7.5, -27.1, 0), App.Vector(-30.5, -13.8, 0)),
    Part.LineSegment(App.Vector(-30.5, -13.8, 0), App.Vector(-30.5, -0.8, 0)),
    Part.LineSegment(App.Vector(-30.5, -0.8, 0), App.Vector(-19.7, -6.1, 0)),
    Part.ArcOfCircle(Part.Circle(App.Vector(-12.2, -6, 0), App.Vector(0, 0, 1), 7.5), math.radians(-179), math.radians(-90)),
], False)
sketch3.addConstraint([
    Sketcher.Constraint("Coincident", 0, 2, 1, 1),
    Sketcher.Constraint("Coincident", 1, 2, 2, 1),
    Sketcher.Constraint("Coincident", 2, 2, 3, 1),
    Sketcher.Constraint("Coincident", 3, 2, 4, 1),
    Sketcher.Constraint("Tangent", 4, 2, 5, 1),
    Sketcher.Constraint("Coincident", 5, 2, 0, 1),
    Sketcher.Constraint("Coincident", 6, 2, 7, 1),
    Sketcher.Constraint("Coincident", 7, 2, 8, 1),
    Sketcher.Constraint("Coincident", 8, 2, 9, 1),
    Sketcher.Constraint("Coincident", 9, 2, 10, 1),
    Sketcher.Constraint("Coincident", 10, 2, 11, 1),
    Sketcher.Constraint("Tangent", 11, 2, 6, 1),
    Sketcher.Constraint("Vertical", 1),
    Sketcher.Constraint("Vertical", 3),
    Sketcher.Constraint("Horizontal", 4),
    Sketcher.Constraint("Horizontal", 6),
    Sketcher.Constraint("Vertical", 7),
    Sketcher.Constraint("Vertical", 9),
    Sketcher.Constraint("Equal", 5, 11),
    Sketcher.Constraint("Symmetric", 5, 3, 11, 3, -2),
    Sketcher.Constraint("Symmetric", 2, 2, 7, 2, -2),
    Sketcher.Constraint("Symmetric", 1, 2, 8, 2, -2),
    Sketcher.Constraint("Horizontal", 0, 2, 9, 2),
    Sketcher.Constraint("Horizontal", 5, 2, 10, 2),
    Sketcher.Constraint("Radius", 5, 7.5),
    Sketcher.Constraint("Angle", 2, Q("-150 deg")),
    Sketcher.Constraint("DistanceX", 4, 1, 4, 2, 4.7),
    Sketcher.Constraint("DistanceY", 5, 3, -1, 1, 6.0),
    Sketcher.Constraint("DistanceX", 2, 2, 1, 2, 23.0),
    Sketcher.Constraint("DistanceX", 6, 2, 3, 2, 15.0),
    Sketcher.Constraint("DistanceY", 3, 1, 3, 2, 13.611761),
    Sketcher.Constraint("DistanceY", 1, 2, 1, 1, 12.988654),
    Sketcher.Constraint("DistanceY", 5, 2, -1, 1, 6.098931),
])
pocket2 = body.newObject("PartDesign::Pocket", "Pocket001")
pocket2.Profile = sketch3
pocket2.Length = 1
pocket2.Reversed = True

sketch4 = body.newObject("Sketcher::SketchObject", "Sketch003")
sketch4.AttachmentSupport = (doc.getObject("XZ_Plane"), [""])
sketch4.MapMode = "FlatFace"
sketch4.AttachmentOffset = App.Placement(App.Vector(0, 0, -1), App.Rotation())
sketch4.addGeometry(Part.Circle(App.Vector(10, -43.8, 0), App.Vector(0, 0, 1), 1.2), False)
sketch4.addGeometry(Part.Circle(App.Vector(-10, -43.8, 0), App.Vector(0, 0, 1), 1.2), False)
sketch4.addGeometry(Part.Circle(App.Vector(0, -31.5, 0), App.Vector(0, 0, 1), 1.2), False)
sketch4.addGeometry(Part.Circle(App.Vector(56.5, -6.1, 0), App.Vector(0, 0, 1), 1.2), False)
sketch4.addGeometry(Part.Circle(App.Vector(-56.5, -6.1, 0), App.Vector(0, 0, 1), 1.2), False)
sketch4.addGeometry(Part.Circle(App.Vector(74.5, -8.4, 0), App.Vector(0, 0, 1), 1.2), False)
sketch4.addGeometry(Part.Circle(App.Vector(-74.5, -8.4, 0), App.Vector(0, 0, 1), 1.2), False)
sketch4.addGeometry(Part.Circle(App.Vector(56.5, 7.2, 0), App.Vector(0, 0, 1), 1.2), False)
sketch4.addGeometry(Part.Circle(App.Vector(-56.5, 7.2, 0), App.Vector(0, 0, 1), 1.2), False)
sketch4.addGeometry(Part.Circle(App.Vector(85.9, 8, 0), App.Vector(0, 0, 1), 1.2), False)
sketch4.addGeometry(Part.Circle(App.Vector(70.8, 7.8, 0), App.Vector(0, 0, 1), 1.2), False)
sketch4.addGeometry(Part.Circle(App.Vector(-85.9, 8, 0), App.Vector(0, 0, 1), 1.2), False)
sketch4.addGeometry(Part.Circle(App.Vector(-70.8, 7.8, 0), App.Vector(0, 0, 1), 1.2), False)
sketch4.addGeometry(Part.Circle(App.Vector(17.5, -29.4, 0), App.Vector(0, 0, 1), 1), False)
sketch4.addGeometry(Part.Circle(App.Vector(30.5, -21.9, 0), App.Vector(0, 0, 1), 1), False)
sketch4.addGeometry(Part.Circle(App.Vector(-30.5, -21.9, 0), App.Vector(0, 0, 1), 1), False)
sketch4.addGeometry(Part.Circle(App.Vector(-17.5, -29.4, 0), App.Vector(0, 0, 1), 1), False)
add_polygon(sketch4, [(28, -25.7), (21.9, -29.2), (19.9, -25.7), (26, -22.2)])
add_polygon(sketch4, [(-28, -25.7), (-26, -22.2), (-19.9, -25.7), (-21.9, -29.2)])
sketch4.addConstraint([
    Sketcher.Constraint("Equal", 0, 1),
    Sketcher.Constraint("Equal", 1, 2),
    Sketcher.Constraint("Equal", 2, 3),
    Sketcher.Constraint("Equal", 3, 4),
    Sketcher.Constraint("Equal", 4, 5),
    Sketcher.Constraint("Equal", 5, 6),
    Sketcher.Constraint("Equal", 6, 7),
    Sketcher.Constraint("Equal", 7, 8),
    Sketcher.Constraint("Equal", 8, 9),
    Sketcher.Constraint("Equal", 9, 10),
    Sketcher.Constraint("Equal", 10, 11),
    Sketcher.Constraint("Equal", 11, 12),
    Sketcher.Constraint("Equal", 13, 14),
    Sketcher.Constraint("Equal", 14, 15),
    Sketcher.Constraint("Equal", 15, 16),
    Sketcher.Constraint("Symmetric", 0, 3, 1, 3, -2),
    Sketcher.Constraint("Symmetric", 3, 3, 4, 3, -2),
    Sketcher.Constraint("Symmetric", 5, 3, 6, 3, -2),
    Sketcher.Constraint("Symmetric", 7, 3, 8, 3, -2),
    Sketcher.Constraint("Symmetric", 9, 3, 11, 3, -2),
    Sketcher.Constraint("Symmetric", 10, 3, 12, 3, -2),
    Sketcher.Constraint("Symmetric", 14, 3, 15, 3, -2),
    Sketcher.Constraint("Symmetric", 13, 3, 16, 3, -2),
    Sketcher.Constraint("Symmetric", 19, 2, 21, 2, -2),
    Sketcher.Constraint("Symmetric", 18, 2, 22, 2, -2),
    Sketcher.Constraint("Symmetric", 17, 2, 23, 2, -2),
    Sketcher.Constraint("Symmetric", 20, 2, 24, 2, -2),
    Sketcher.Constraint("PointOnObject", 2, 3, -2),
    Sketcher.Constraint("Perpendicular", 17, 18),
    Sketcher.Constraint("Perpendicular", 18, 19),
    Sketcher.Constraint("Perpendicular", 19, 20),
    Sketcher.Constraint("Vertical", 3, 3, 7, 3),
    Sketcher.Constraint("Diameter", 13, 2.0),
    Sketcher.Constraint("Diameter", 0, 2.5),
    Sketcher.Constraint("Angle", 17, Q("-150 deg")),
    Sketcher.Constraint("Distance", 17, 7.0),
    Sketcher.Constraint("Distance", 18, 4.0),
    Sketcher.Constraint("DistanceX", -1, 1, 0, 3, 10.0),
    Sketcher.Constraint("DistanceX", 3, 3, 5, 3, 18.0),
    Sketcher.Constraint("DistanceY", 0, 3, 7, 3, 51.0),
    Sketcher.Constraint("DistanceY", 2, 3, -1, 1, 31.5),
    Sketcher.Constraint("DistanceY", 13, 3, 14, 3, 7.5),
    Sketcher.Constraint("DistanceX", 4, 3, 21, 2, 30.5),
    Sketcher.Constraint("DistanceY", 0, 3, -1, 1, 43.75),
    Sketcher.Constraint("DistanceX", 14, 3, 3, 3, 26.035898),
    Sketcher.Constraint("DistanceX", 13, 3, 17, 2, 4.464102),
    Sketcher.Constraint("DistanceX", -1, 1, 3, 3, 56.507042),
    Sketcher.Constraint("DistanceY", -1, 1, 10, 3, 7.777621),
    Sketcher.Constraint("DistanceY", 13, 3, -1, 1, 29.432269),
    Sketcher.Constraint("DistanceY", 17, 2, -1, 1, 29.164319),
    Sketcher.Constraint("DistanceY", 3, 3, 9, 3, 14.116188),
    Sketcher.Constraint("DistanceX", 10, 3, 9, 3, 15.152328),
    Sketcher.Constraint("DistanceY", 10, 3, 9, 3, 0.257152),
    Sketcher.Constraint("DistanceY", 5, 3, -1, 1, 8.385263),
    Sketcher.Constraint("DistanceX", -1, 1, 9, 3, 85.925554),
])
pocket3 = body.newObject("PartDesign::Pocket", "Pocket002")
pocket3.Profile = sketch4
pocket3.Length = 10
pocket3.Reversed = True

sketch5 = body.newObject("Sketcher::SketchObject", "Sketch004")
sketch5.AttachmentSupport = (doc.getObject("XZ_Plane"), [""])
sketch5.MapMode = "FlatFace"
sketch5.AttachmentOffset = App.Placement(App.Vector(0, 0, -1), App.Rotation())
sketch5.addGeometry(Part.LineSegment(App.Vector(14.75, -40.25, 0), App.Vector(14.75, -29.64, 0)), False)
sketch5.addGeometry(Part.ArcOfCircle(Part.Circle(App.Vector(15, -29.64, 0), App.Vector(0, 0, 1), 0.25), math.radians(30), math.radians(180)), False)
sketch5.addGeometry(Part.LineSegment(App.Vector(15.22, -29.51, 0), App.Vector(17.25, -33.03, 0)), False)
sketch5.addGeometry(Part.LineSegment(App.Vector(17.25, -33.03, 0), App.Vector(23.74, -29.28, 0)), False)
sketch5.addGeometry(Part.LineSegment(App.Vector(23.74, -29.28, 0), App.Vector(26.24, -33.61, 0)), False)
sketch5.addGeometry(Part.LineSegment(App.Vector(26.24, -33.61, 0), App.Vector(14.75, -40.25, 0)), False)
add_polygon(sketch5, [(43.01, -23.93), (29.71, -31.61), (27.21, -27.28), (33.7, -23.53), (31.7, -20.07), (38.63, -16.07), (43.01, -17.93)])
add_polygon(sketch5, [(-27.21, -27.28), (-29.71, -31.61), (-43.01, -23.93), (-43.01, -17.93), (-38.63, -16.07), (-31.7, -20.07), (-33.7, -23.53)])
sketch5.addGeometry(Part.LineSegment(App.Vector(-17.25, -33.03, 0), App.Vector(-15.22, -29.51, 0)), False)
sketch5.addGeometry(Part.ArcOfCircle(Part.Circle(App.Vector(-15, -29.64, 0), App.Vector(0, 0, 1), 0.25), math.radians(0), math.radians(150)), False)
sketch5.addGeometry(Part.LineSegment(App.Vector(-14.75, -29.64, 0), App.Vector(-14.75, -40.25, 0)), False)
sketch5.addGeometry(Part.LineSegment(App.Vector(-14.75, -40.25, 0), App.Vector(-26.24, -33.61, 0)), False)
sketch5.addGeometry(Part.LineSegment(App.Vector(-26.24, -33.61, 0), App.Vector(-23.74, -29.28, 0)), False)
sketch5.addGeometry(Part.LineSegment(App.Vector(-23.74, -29.28, 0), App.Vector(-17.25, -33.03, 0)), False)
sketch5.addConstraint([
    Sketcher.Constraint("Tangent", 0, 2, 1, 2),
    Sketcher.Constraint("Tangent", 1, 1, 2, 1),
    Sketcher.Constraint("Coincident", 2, 2, 3, 1),
    Sketcher.Constraint("Coincident", 3, 2, 4, 1),
    Sketcher.Constraint("Coincident", 4, 2, 5, 1),
    Sketcher.Constraint("Coincident", 5, 2, 0, 1),
    Sketcher.Constraint("Tangent", 20, 2, 21, 2),
    Sketcher.Constraint("Tangent", 21, 1, 22, 1),
    Sketcher.Constraint("Coincident", 22, 2, 23, 1),
    Sketcher.Constraint("Coincident", 23, 2, 24, 1),
    Sketcher.Constraint("Coincident", 24, 2, 25, 1),
    Sketcher.Constraint("Coincident", 25, 2, 20, 1),
    Sketcher.Constraint("Vertical", 0),
    Sketcher.Constraint("Vertical", 12),
    Sketcher.Constraint("Vertical", 15),
    Sketcher.Constraint("Vertical", 22),
    Sketcher.Constraint("Equal", 1, 21),
    Sketcher.Constraint("Symmetric", 1, 3, 21, 3, -2),
    Sketcher.Constraint("Symmetric", 6, 2, 13, 2, -2),
    Sketcher.Constraint("Symmetric", 12, 2, 14, 2, -2),
    Sketcher.Constraint("Symmetric", 10, 2, 16, 2, -2),
    Sketcher.Constraint("Symmetric", 9, 2, 17, 2, -2),
    Sketcher.Constraint("Symmetric", 8, 2, 18, 2, -2),
    Sketcher.Constraint("Symmetric", 7, 2, 19, 2, -2),
    Sketcher.Constraint("Symmetric", 4, 2, 23, 2, -2),
    Sketcher.Constraint("Symmetric", 3, 2, 24, 2, -2),
    Sketcher.Constraint("Symmetric", 2, 2, 25, 2, -2),
    Sketcher.Constraint("Perpendicular", 2, 3),
    Sketcher.Constraint("Perpendicular", 3, 4),
    Sketcher.Constraint("Perpendicular", 4, 5),
    Sketcher.Constraint("Parallel", 5, 6),
    Sketcher.Constraint("Perpendicular", 6, 7),
    Sketcher.Constraint("Perpendicular", 7, 8),
    Sketcher.Constraint("Perpendicular", 8, 9),
    Sketcher.Constraint("Perpendicular", 9, 10),
    Sketcher.Constraint("Perpendicular", 20, 23),
    Sketcher.Constraint("Horizontal", 11, 2, 15, 2),
    Sketcher.Constraint("Equal", 4, 7),
    Sketcher.Constraint("Equal", 3, 8),
    Sketcher.Constraint("DistanceY", 12, 2, 12, 1, 6.0),
    Sketcher.Constraint("Angle", 2, Q("-60 deg")),
    Sketcher.Constraint("Radius", 1, 0.25),
    Sketcher.Constraint("Distance", 4, 5.0),
    Sketcher.Constraint("Distance", 9, 4.0),
    Sketcher.Constraint("Distance", 10, 8.0),
    Sketcher.Constraint("DistanceX", -1, 1, 1, 3, 15.0),
    Sketcher.Constraint("DistanceY", 4, 2, 6, 2, 2.0),
    Sketcher.Constraint("Distance", 3, 7.5),
    Sketcher.Constraint("DistanceX", -1, 1, 3, 2, 23.743902),
    Sketcher.Constraint("DistanceX", 4, 2, 6, 2, 3.464102),
    Sketcher.Constraint("DistanceY", 4, 2, -1, 1, 33.610472),
    Sketcher.Constraint("DistanceX", -1, 1, 11, 2, 43.007042),
])
pocket4 = body.newObject("PartDesign::Pocket", "Pocket003")
pocket4.Profile = sketch5
pocket4.Type = "ThroughAll"
pocket4.Reversed = True

doc.recompute()
